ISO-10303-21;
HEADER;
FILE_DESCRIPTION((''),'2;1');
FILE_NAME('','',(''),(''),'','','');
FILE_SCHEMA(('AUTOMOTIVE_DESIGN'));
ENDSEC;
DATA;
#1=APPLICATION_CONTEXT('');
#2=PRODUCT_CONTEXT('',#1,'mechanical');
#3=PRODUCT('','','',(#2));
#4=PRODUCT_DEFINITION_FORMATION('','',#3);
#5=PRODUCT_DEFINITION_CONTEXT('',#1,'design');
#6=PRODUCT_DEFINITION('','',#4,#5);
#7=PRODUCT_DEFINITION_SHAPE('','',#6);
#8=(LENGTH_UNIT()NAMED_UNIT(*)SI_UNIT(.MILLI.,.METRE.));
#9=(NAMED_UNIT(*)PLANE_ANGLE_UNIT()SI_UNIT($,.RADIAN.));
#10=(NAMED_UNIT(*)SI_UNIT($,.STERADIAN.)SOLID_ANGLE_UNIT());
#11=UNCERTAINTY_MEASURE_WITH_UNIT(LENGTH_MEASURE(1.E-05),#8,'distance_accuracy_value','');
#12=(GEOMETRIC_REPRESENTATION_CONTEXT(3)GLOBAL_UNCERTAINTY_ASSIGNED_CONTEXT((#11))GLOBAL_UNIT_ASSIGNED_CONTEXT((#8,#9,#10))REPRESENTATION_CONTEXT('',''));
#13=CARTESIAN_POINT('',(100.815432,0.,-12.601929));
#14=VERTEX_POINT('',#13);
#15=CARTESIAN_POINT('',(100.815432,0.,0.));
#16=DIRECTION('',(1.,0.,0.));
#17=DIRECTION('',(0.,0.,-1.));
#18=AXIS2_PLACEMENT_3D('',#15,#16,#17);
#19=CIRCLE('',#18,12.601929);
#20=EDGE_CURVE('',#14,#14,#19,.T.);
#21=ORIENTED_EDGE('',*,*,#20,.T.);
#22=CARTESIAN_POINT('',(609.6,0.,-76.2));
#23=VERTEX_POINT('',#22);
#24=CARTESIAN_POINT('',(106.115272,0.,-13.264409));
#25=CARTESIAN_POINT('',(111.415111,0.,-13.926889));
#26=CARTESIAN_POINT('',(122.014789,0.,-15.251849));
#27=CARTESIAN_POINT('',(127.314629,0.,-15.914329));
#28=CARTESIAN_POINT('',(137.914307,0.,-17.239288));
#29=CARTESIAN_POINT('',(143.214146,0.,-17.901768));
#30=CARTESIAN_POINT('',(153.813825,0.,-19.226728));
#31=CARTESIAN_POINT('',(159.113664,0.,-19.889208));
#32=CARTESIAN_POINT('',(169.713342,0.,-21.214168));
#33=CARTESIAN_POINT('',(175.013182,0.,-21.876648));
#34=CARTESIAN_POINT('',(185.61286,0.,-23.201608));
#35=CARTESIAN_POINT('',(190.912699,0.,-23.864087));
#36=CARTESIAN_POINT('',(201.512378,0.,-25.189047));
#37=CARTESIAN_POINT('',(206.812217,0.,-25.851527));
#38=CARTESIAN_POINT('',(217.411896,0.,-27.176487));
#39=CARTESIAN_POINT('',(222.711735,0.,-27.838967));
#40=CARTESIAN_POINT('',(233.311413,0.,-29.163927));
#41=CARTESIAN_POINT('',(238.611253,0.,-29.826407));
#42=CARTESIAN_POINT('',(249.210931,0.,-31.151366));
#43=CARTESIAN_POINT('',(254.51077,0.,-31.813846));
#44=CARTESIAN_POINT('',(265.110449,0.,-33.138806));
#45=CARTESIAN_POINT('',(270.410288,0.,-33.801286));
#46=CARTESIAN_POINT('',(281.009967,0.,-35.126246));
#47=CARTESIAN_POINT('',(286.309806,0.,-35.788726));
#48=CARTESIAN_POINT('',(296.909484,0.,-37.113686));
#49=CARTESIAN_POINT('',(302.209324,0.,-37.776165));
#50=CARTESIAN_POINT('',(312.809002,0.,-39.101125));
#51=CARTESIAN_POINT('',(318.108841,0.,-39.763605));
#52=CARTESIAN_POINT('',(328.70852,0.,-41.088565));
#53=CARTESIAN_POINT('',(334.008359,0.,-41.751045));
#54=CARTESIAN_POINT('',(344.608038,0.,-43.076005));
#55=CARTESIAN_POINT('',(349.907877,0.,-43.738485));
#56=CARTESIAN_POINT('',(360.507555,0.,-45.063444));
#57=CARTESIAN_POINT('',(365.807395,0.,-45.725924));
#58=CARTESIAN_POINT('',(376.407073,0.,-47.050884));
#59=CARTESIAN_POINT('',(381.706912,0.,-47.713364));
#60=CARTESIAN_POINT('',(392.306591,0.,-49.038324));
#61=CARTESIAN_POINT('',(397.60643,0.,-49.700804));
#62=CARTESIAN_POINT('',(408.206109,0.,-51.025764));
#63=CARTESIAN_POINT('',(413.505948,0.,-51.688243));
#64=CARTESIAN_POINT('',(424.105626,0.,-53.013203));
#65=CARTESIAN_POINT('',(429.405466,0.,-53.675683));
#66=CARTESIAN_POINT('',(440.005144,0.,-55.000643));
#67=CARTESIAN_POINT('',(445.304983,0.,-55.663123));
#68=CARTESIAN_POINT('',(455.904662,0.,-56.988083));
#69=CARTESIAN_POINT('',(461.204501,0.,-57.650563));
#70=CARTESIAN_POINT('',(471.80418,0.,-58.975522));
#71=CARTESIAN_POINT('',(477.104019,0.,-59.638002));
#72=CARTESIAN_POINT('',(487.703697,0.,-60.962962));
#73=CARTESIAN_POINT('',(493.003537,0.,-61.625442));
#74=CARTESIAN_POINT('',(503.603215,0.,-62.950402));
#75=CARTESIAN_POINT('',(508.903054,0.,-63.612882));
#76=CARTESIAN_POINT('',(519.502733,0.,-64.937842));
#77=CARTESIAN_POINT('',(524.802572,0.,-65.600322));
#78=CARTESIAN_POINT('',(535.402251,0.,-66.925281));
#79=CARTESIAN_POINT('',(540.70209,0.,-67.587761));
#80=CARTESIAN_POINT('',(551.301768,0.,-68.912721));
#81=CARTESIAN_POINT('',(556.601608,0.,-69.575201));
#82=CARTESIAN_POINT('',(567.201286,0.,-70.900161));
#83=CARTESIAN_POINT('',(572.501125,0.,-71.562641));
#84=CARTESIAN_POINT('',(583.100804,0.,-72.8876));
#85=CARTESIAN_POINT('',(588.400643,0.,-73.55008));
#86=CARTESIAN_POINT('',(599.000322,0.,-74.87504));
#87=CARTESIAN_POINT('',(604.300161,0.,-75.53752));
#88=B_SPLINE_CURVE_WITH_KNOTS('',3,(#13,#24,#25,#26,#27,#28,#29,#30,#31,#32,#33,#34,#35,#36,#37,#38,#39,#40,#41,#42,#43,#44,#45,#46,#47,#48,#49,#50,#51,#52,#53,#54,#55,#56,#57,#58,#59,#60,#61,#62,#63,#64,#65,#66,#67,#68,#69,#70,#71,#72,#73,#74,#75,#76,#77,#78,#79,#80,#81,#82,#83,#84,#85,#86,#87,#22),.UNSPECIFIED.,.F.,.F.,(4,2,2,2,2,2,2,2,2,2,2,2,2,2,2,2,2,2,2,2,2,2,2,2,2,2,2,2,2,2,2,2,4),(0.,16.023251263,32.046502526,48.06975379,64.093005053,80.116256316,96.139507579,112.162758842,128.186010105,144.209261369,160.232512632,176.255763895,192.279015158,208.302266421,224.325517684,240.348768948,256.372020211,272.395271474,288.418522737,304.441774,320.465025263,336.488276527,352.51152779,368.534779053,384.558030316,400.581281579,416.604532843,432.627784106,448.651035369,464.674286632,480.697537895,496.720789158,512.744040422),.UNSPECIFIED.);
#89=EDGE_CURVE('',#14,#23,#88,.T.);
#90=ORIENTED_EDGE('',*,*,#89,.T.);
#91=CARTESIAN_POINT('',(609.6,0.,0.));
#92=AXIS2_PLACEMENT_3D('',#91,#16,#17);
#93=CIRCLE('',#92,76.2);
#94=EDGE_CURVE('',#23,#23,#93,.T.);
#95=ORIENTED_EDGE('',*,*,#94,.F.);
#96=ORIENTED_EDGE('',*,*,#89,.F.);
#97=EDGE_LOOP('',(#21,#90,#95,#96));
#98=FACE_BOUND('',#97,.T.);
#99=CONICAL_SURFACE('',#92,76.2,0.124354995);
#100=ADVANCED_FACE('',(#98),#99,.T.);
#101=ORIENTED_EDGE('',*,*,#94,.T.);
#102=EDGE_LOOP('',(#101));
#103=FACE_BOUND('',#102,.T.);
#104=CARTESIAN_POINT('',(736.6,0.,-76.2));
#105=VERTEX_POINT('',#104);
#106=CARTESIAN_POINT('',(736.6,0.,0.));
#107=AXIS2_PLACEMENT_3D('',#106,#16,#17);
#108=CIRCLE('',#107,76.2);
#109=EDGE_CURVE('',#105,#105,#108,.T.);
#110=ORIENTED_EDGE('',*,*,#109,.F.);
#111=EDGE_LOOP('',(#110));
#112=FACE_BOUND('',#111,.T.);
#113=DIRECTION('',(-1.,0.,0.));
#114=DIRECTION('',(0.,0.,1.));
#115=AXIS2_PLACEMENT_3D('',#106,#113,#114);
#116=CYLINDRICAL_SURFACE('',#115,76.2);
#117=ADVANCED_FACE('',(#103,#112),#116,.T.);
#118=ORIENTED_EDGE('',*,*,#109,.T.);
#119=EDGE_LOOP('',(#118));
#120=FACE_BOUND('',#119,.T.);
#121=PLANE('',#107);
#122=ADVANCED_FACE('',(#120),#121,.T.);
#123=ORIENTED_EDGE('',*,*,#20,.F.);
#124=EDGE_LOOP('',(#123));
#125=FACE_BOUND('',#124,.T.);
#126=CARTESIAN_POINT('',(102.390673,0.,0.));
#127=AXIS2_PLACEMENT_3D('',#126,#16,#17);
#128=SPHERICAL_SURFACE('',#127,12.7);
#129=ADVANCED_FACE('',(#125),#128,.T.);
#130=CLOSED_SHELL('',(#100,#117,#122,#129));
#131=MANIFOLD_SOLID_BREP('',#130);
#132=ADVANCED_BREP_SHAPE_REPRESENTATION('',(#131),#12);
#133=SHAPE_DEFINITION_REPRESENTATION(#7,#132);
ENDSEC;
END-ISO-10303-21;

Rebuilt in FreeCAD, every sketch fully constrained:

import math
import FreeCAD as App
import Part
import Sketcher
Q = App.Units.Quantity

doc = App.newDocument("Part")
body = doc.addObject("PartDesign::Body", "Body")

sketch1 = doc.addObject("Sketcher::SketchObject", "Sketch")
body.addObject(sketch1)
sketch1.AttachmentSupport = (doc.XZ_Plane, [""])
sketch1.MapMode = "FlatFace"
sketch1.addGeometry(Part.LineSegment(App.Vector(90, 0, 0), App.Vector(610, 0, 0)), False)
sketch1.addGeometry(Part.LineSegment(App.Vector(610, 0, 0), App.Vector(610, -76, 0)), False)
sketch1.addGeometry(Part.LineSegment(App.Vector(610, -76, 0), App.Vector(101, -13, 0)), False)
sketch1.addGeometry(Part.ArcOfCircle(Part.Circle(App.Vector(102, 0, 0), App.Vector(0, 0, 1), 13), math.radians(180), math.radians(263)), False)
sketch1.addConstraint(Sketcher.Constraint("Coincident", 0, 2, 1, 1))
sketch1.addConstraint(Sketcher.Constraint("Coincident", 1, 2, 2, 1))
sketch1.addConstraint(Sketcher.Constraint("Tangent", 2, 2, 3, 2))
sketch1.addConstraint(Sketcher.Constraint("Coincident", 3, 1, 0, 1))
sketch1.addConstraint(Sketcher.Constraint("Horizontal", 0))
sketch1.addConstraint(Sketcher.Constraint("Vertical", 1))
sketch1.addConstraint(Sketcher.Constraint("PointOnObject", 3, 3, -1))
sketch1.addConstraint(Sketcher.Constraint("PointOnObject", 0, 2, -1))
sketch1.addConstraint(Sketcher.Constraint("Radius", 3, Q("0.5 in")))
sketch1.addConstraint(Sketcher.Constraint("DistanceY", 1, 2, 1, 1, Q("3 in")))
sketch1.addConstraint(Sketcher.Constraint("DistanceX", -1, 1, 0, 2, Q("24 in")))
sketch1.addConstraint(Sketcher.Constraint("Distance", 2, 512.74404))
revolution = doc.addObject("PartDesign::Revolution", "Revolution")
body.addObject(revolution)
revolution.Profile = sketch1
revolution.ReferenceAxis = (sketch1, ["H_Axis"])
revolution.Angle = 360

sketch2 = doc.addObject("Sketcher::SketchObject", "Sketch001")
body.addObject(sketch2)
sketch2.AttachmentSupport = (doc.YZ_Plane, [""])
sketch2.MapMode = "FlatFace"
sketch2.AttachmentOffset = App.Placement(App.Vector(0, 0, 24 * 25.4), App.Rotation())
sketch2.addGeometry(Part.Circle(App.Vector(0, 0, 0), App.Vector(0, 0, 1), 76), False)
sketch2.addConstraint(Sketcher.Constraint("Coincident", 0, 3, -1, 1))
sketch2.addConstraint(Sketcher.Constraint("Diameter", 0, Q("6 in")))
pad1 = doc.addObject("PartDesign::Pad", "Pad")
body.addObject(pad1)
pad1.Profile = sketch2
pad1.Length = Q("5 in")

doc.recompute()
